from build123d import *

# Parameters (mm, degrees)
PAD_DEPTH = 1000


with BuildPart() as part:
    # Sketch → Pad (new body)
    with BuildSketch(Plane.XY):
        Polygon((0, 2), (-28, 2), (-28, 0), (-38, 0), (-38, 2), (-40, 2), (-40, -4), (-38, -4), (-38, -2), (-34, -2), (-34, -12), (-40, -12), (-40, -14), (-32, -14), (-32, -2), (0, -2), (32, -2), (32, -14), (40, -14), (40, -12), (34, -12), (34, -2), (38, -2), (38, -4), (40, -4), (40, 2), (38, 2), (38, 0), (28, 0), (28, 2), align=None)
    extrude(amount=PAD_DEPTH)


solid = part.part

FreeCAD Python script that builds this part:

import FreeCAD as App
import Part
import Sketcher

V = App.Vector

doc = App.newDocument("Part")
body = doc.addObject("PartDesign::Body", "Body")

sketch1 = body.newObject("Sketcher::SketchObject", "Sketch")
sketch1.AttachmentSupport = (doc.getObject("XY_Plane"), [""])
sketch1.MapMode = "FlatFace"
sketch1.addGeometry(Part.LineSegment(V(-28, 2, 0), V(-28, 0, 0)), False)
sketch1.addGeometry(Part.LineSegment(V(-28, 0, 0), V(-38, 0, 0)), False)
sketch1.addGeometry(Part.LineSegment(V(-38, 0, 0), V(-38, 2, 0)), False)
sketch1.addGeometry(Part.LineSegment(V(-38, 2, 0), V(-40, 2, 0)), False)
sketch1.addGeometry(Part.LineSegment(V(-40, 2, 0), V(-40, -4, 0)), False)
sketch1.addGeometry(Part.LineSegment(V(-40, -4, 0), V(-38, -4, 0)), False)
sketch1.addGeometry(Part.LineSegment(V(-38, -4, 0), V(-38, -2, 0)), False)
sketch1.addGeometry(Part.LineSegment(V(-38, -2, 0), V(-34, -2, 0)), False)
sketch1.addGeometry(Part.LineSegment(V(-34, -2, 0), V(-34, -12, 0)), False)
sketch1.addGeometry(Part.LineSegment(V(-34, -12, 0), V(-40, -12, 0)), False)
sketch1.addGeometry(Part.LineSegment(V(-40, -12, 0), V(-40, -14, 0)), False)
sketch1.addGeometry(Part.LineSegment(V(-40, -14, 0), V(-32, -14, 0)), False)
sketch1.addGeometry(Part.LineSegment(V(-32, -14, 0), V(-32, -2, 0)), False)
sketch1.addGeometry(Part.LineSegment(V(-32, -2, 0), V(32, -2, 0)), False)
sketch1.addGeometry(Part.LineSegment(V(32, -2, 0), V(32, -14, 0)), False)
sketch1.addGeometry(Part.LineSegment(V(32, -14, 0), V(40, -14, 0)), False)
sketch1.addGeometry(Part.LineSegment(V(40, -14, 0), V(40, -12, 0)), False)
sketch1.addGeometry(Part.LineSegment(V(40, -12, 0), V(34, -12, 0)), False)
sketch1.addGeometry(Part.LineSegment(V(34, -12, 0), V(34, -2, 0)), False)
sketch1.addGeometry(Part.LineSegment(V(34, -2, 0), V(38, -2, 0)), False)
sketch1.addGeometry(Part.LineSegment(V(38, -2, 0), V(38, -4, 0)), False)
sketch1.addGeometry(Part.LineSegment(V(38, -4, 0), V(40, -4, 0)), False)
sketch1.addGeometry(Part.LineSegment(V(40, -4, 0), V(40, 2, 0)), False)
sketch1.addGeometry(Part.LineSegment(V(40, 2, 0), V(38, 2, 0)), False)
sketch1.addGeometry(Part.LineSegment(V(38, 2, 0), V(38, 0, 0)), False)
sketch1.addGeometry(Part.LineSegment(V(38, 0, 0), V(28, 0, 0)), False)
sketch1.addGeometry(Part.LineSegment(V(28, 0, 0), V(28, 2, 0)), False)
sketch1.addGeometry(Part.LineSegment(V(28, 2, 0), V(-28, 2, 0)), False)
sketch1.addConstraint(Sketcher.Constraint("Coincident", 0, 2, 1, 1))
sketch1.addConstraint(Sketcher.Constraint("Coincident", 1, 2, 2, 1))
sketch1.addConstraint(Sketcher.Constraint("Coincident", 2, 2, 3, 1))
sketch1.addConstraint(Sketcher.Constraint("Coincident", 3, 2, 4, 1))
sketch1.addConstraint(Sketcher.Constraint("Coincident", 4, 2, 5, 1))
sketch1.addConstraint(Sketcher.Constraint("Coincident", 5, 2, 6, 1))
sketch1.addConstraint(Sketcher.Constraint("Coincident", 6, 2, 7, 1))
sketch1.addConstraint(Sketcher.Constraint("Coincident", 7, 2, 8, 1))
sketch1.addConstraint(Sketcher.Constraint("Coincident", 8, 2, 9, 1))
sketch1.addConstraint(Sketcher.Constraint("Coincident", 9, 2, 10, 1))
sketch1.addConstraint(Sketcher.Constraint("Coincident", 10, 2, 11, 1))
sketch1.addConstraint(Sketcher.Constraint("Coincident", 11, 2, 12, 1))
sketch1.addConstraint(Sketcher.Constraint("Coincident", 12, 2, 13, 1))
sketch1.addConstraint(Sketcher.Constraint("Coincident", 13, 2, 14, 1))
sketch1.addConstraint(Sketcher.Constraint("Coincident", 14, 2, 15, 1))
sketch1.addConstraint(Sketcher.Constraint("Coincident", 15, 2, 16, 1))
sketch1.addConstraint(Sketcher.Constraint("Coincident", 16, 2, 17, 1))
sketch1.addConstraint(Sketcher.Constraint("Coincident", 17, 2, 18, 1))
sketch1.addConstraint(Sketcher.Constraint("Coincident", 18, 2, 19, 1))
sketch1.addConstraint(Sketcher.Constraint("Coincident", 19, 2, 20, 1))
sketch1.addConstraint(Sketcher.Constraint("Coincident", 20, 2, 21, 1))
sketch1.addConstraint(Sketcher.Constraint("Coincident", 21, 2, 22, 1))
sketch1.addConstraint(Sketcher.Constraint("Coincident", 22, 2, 23, 1))
sketch1.addConstraint(Sketcher.Constraint("Coincident", 23, 2, 24, 1))
sketch1.addConstraint(Sketcher.Constraint("Coincident", 24, 2, 25, 1))
sketch1.addConstraint(Sketcher.Constraint("Coincident", 25, 2, 26, 1))
sketch1.addConstraint(Sketcher.Constraint("Coincident", 26, 2, 27, 1))
sketch1.addConstraint(Sketcher.Constraint("Coincident", 27, 2, 0, 1))
sketch1.addConstraint(Sketcher.Constraint("Vertical", 0))
sketch1.addConstraint(Sketcher.Constraint("Horizontal", 1))
sketch1.addConstraint(Sketcher.Constraint("Vertical", 2))
sketch1.addConstraint(Sketcher.Constraint("Horizontal", 3))
sketch1.addConstraint(Sketcher.Constraint("Vertical", 4))
sketch1.addConstraint(Sketcher.Constraint("Horizontal", 5))
sketch1.addConstraint(Sketcher.Constraint("Vertical", 6))
sketch1.addConstraint(Sketcher.Constraint("Horizontal", 7))
sketch1.addConstraint(Sketcher.Constraint("Vertical", 8))
sketch1.addConstraint(Sketcher.Constraint("Horizontal", 9))
sketch1.addConstraint(Sketcher.Constraint("Vertical", 10))
sketch1.addConstraint(Sketcher.Constraint("Horizontal", 11))
sketch1.addConstraint(Sketcher.Constraint("Vertical", 12))
sketch1.addConstraint(Sketcher.Constraint("Horizontal", 13))
sketch1.addConstraint(Sketcher.Constraint("Vertical", 14))
sketch1.addConstraint(Sketcher.Constraint("Horizontal", 15))
sketch1.addConstraint(Sketcher.Constraint("Vertical", 16))
sketch1.addConstraint(Sketcher.Constraint("Horizontal", 17))
sketch1.addConstraint(Sketcher.Constraint("Vertical", 18))
sketch1.addConstraint(Sketcher.Constraint("Horizontal", 19))
sketch1.addConstraint(Sketcher.Constraint("Vertical", 20))
sketch1.addConstraint(Sketcher.Constraint("Horizontal", 21))
sketch1.addConstraint(Sketcher.Constraint("Vertical", 22))
sketch1.addConstraint(Sketcher.Constraint("Horizontal", 23))
sketch1.addConstraint(Sketcher.Constraint("Vertical", 24))
sketch1.addConstraint(Sketcher.Constraint("Horizontal", 25))
sketch1.addConstraint(Sketcher.Constraint("Vertical", 26))
sketch1.addConstraint(Sketcher.Constraint("Horizontal", 27))
sketch1.addConstraint(Sketcher.Constraint("Symmetric", 2, 2, 19, 2, -1, 1))
sketch1.addConstraint(Sketcher.Constraint("Symmetric", 6, 2, 23, 2, -1, 1))
sketch1.addConstraint(Sketcher.Constraint("Symmetric", 1, 2, 24, 2, -1, 1))
sketch1.addConstraint(Sketcher.Constraint("Symmetric", 11, 2, 14, 2, -2))
sketch1.addConstraint(Sketcher.Constraint("Symmetric", 9, 2, 16, 2, -2))
sketch1.addConstraint(Sketcher.Constraint("Symmetric", 7, 2, 18, 2, -2))
sketch1.addConstraint(Sketcher.Constraint("Symmetric", 4, 2, 21, 2, -2))
sketch1.addConstraint(Sketcher.Constraint("Symmetric", 0, 2, 25, 2, -2))
sketch1.addConstraint(Sketcher.Constraint("Horizontal", 7, 2, 12, 2))
sketch1.addConstraint(Sketcher.Constraint("Horizontal", 23, 2, 26, 2))
sketch1.addConstraint(Sketcher.Constraint("Vertical", 4, 2, 9, 2))
sketch1.addConstraint(Sketcher.Constraint("Equal", 23, 0))
sketch1.addConstraint(Sketcher.Constraint("Equal", 17, 4))
sketch1.addConstraint(Sketcher.Constraint("Equal", 2, 6))
sketch1.addConstraint(Sketcher.Constraint("Equal", 25, 8))
sketch1.addConstraint(Sketcher.Constraint("Equal", 6, 10))
sketch1.addConstraint(Sketcher.Constraint("DistanceX", 1, 2, 1, 1, 10.0))
sketch1.addConstraint(Sketcher.Constraint("DistanceX", 3, 2, 3, 1, 2.0))
sketch1.addConstraint(Sketcher.Constraint("DistanceX", 11, 1, 11, 2, 8.0))
sketch1.addConstraint(Sketcher.Constraint("DistanceX", 13, 1, 13, 2, 64.0))
pad1 = body.newObject("PartDesign::Pad", "Pad")
pad1.Profile = sketch1
pad1.Length = 1000

doc.recompute()
